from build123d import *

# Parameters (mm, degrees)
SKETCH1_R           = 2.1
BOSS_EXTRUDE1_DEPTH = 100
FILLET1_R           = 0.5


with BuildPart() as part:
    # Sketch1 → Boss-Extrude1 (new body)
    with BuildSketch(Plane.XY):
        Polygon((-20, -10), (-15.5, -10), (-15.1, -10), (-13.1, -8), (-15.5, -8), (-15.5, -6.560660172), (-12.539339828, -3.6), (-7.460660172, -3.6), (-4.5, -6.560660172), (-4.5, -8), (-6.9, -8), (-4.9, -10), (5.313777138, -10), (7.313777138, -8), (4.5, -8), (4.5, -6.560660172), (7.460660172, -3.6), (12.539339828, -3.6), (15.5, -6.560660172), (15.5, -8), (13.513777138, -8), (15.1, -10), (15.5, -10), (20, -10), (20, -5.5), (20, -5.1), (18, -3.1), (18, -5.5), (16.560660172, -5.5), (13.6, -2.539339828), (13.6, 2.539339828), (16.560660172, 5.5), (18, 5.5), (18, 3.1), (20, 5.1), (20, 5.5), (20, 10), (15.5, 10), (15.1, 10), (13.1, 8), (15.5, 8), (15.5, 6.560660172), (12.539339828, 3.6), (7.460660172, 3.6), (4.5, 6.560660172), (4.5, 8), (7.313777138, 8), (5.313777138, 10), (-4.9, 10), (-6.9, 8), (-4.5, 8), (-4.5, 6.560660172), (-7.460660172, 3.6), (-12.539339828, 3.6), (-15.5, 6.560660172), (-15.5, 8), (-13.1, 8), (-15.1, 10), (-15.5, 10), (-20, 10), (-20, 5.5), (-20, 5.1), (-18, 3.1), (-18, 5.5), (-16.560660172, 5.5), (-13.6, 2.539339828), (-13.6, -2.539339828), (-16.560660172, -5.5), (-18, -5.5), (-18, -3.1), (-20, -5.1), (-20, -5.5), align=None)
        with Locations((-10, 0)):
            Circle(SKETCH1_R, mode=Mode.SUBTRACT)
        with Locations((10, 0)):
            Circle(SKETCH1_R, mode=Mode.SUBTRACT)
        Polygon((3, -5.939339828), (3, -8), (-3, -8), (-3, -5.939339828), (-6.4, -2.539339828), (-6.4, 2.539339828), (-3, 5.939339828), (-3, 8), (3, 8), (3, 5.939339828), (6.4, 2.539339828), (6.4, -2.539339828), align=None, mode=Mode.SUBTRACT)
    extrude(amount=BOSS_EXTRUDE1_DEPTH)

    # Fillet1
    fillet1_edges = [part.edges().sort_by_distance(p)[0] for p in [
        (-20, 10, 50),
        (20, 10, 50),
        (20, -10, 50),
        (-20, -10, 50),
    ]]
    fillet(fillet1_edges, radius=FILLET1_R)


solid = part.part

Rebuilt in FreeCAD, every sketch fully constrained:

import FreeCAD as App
import Part
import Sketcher
from FreeCAD import Vector
Q = App.Units.Quantity


def edges_at(feature, points):
    """Names of the edges that pass closest to the given points."""
    edges = feature.Shape.Edges
    near = lambda p: min(range(len(edges)), key=lambda i: edges[i].distToShape(Part.Vertex(*p))[0])
    return sorted({f"Edge{near(p) + 1}" for p in points})


def add_polygon(sketch, points):
    """Adds a closed chain of lines whose ends are joined by coincident constraints."""
    first, n = sketch.GeometryCount, len(points)
    for a, b in zip(points, points[1:] + points[:1]):
        sketch.addGeometry(Part.LineSegment(App.Vector(*a, 0), App.Vector(*b, 0)), False)
    for i in range(n):
        sketch.addConstraint(Sketcher.Constraint("Coincident", first + i, 2, first + (i + 1) % n, 1))

doc = App.newDocument("Part")
params = doc.addObject("Spreadsheet::Sheet", "Params")
for row, (alias, value) in enumerate([
    ("sketch1_diameter", "4.2 mm"),
    ("sketch1_width", "6 mm"),
    ("sketch1_width2", "4.9 mm"),
    ("sketch1_width3", "2.4 mm"),
    ("pad1_length", "100 mm"),
    ("fillet_radius", "0.5 mm"),
], start=1):
    params.set(f"A{row}", alias)
    params.set(f"B{row}", "=" + value)
    params.setAlias(f"B{row}", alias)

body = doc.addObject("PartDesign::Body", "Body")

# Sketch on XY plane
sketch1 = body.newObject("Sketcher::SketchObject", "Sketch")
sketch1.AttachmentSupport = (doc.getObject("XY_Plane"), [""])
sketch1.MapMode = "FlatFace"
add_polygon(sketch1, [(-20, -10), (-15.1, -10), (-13.1, -8), (-15.5, -8), (-15.5, -6.6), (-12.5, -3.6), (-7.5, -3.6), (-4.5, -6.6), (-4.5, -8), (-6.9, -8), (-4.9, -10), (5.3, -10), (7.3, -8), (4.5, -8), (4.5, -6.6), (7.5, -3.6), (12.5, -3.6), (15.5, -6.6), (15.5, -8), (13.5, -8), (15.1, -10), (20, -10), (20, -5.1), (18, -3.1), (18, -5.5), (16.6, -5.5), (13.6, -2.5), (13.6, 2.5), (16.6, 5.5), (18, 5.5), (18, 3.1), (20, 5.1), (20, 10), (15.1, 10), (13.1, 8), (15.5, 8), (15.5, 6.6), (12.5, 3.6), (7.5, 3.6), (4.5, 6.6), (4.5, 8), (7.3, 8), (5.3, 10), (-4.9, 10), (-6.9, 8), (-4.5, 8), (-4.5, 6.6), (-7.5, 3.6), (-12.5, 3.6), (-15.5, 6.6), (-15.5, 8), (-13.1, 8), (-15.1, 10), (-20, 10), (-20, 5.1), (-18, 3.1), (-18, 5.5), (-16.6, 5.5), (-13.6, 2.5), (-13.6, -2.5), (-16.6, -5.5), (-18, -5.5), (-18, -3.1), (-20, -5.1)])  # lines 0-63
sketch1.addGeometry(Part.Circle(Vector(-10, 0, 0), Vector(0, 0, 1), 2.1), False)  # 64
add_polygon(sketch1, [(6.4, -2.5), (3, -5.9), (3, -8), (-3, -8), (-3, -5.9), (-6.4, -2.5), (-6.4, 2.5), (-3, 5.9), (-3, 8), (3, 8), (3, 5.9), (6.4, 2.5)])  # lines 65-76
sketch1.addGeometry(Part.Circle(Vector(10, 0, 0), Vector(0, 0, 1), 2.1), False)  # 77
sketch1.addConstraint([
    Sketcher.Constraint("Horizontal", 0),
    Sketcher.Constraint("Horizontal", 2),
    Sketcher.Constraint("Vertical", 3),
    Sketcher.Constraint("Horizontal", 5),
    Sketcher.Constraint("Vertical", 7),
    Sketcher.Constraint("Horizontal", 8),
    Sketcher.Constraint("Horizontal", 10),
    Sketcher.Constraint("Horizontal", 12),
    Sketcher.Constraint("Vertical", 13),
    Sketcher.Constraint("Horizontal", 15),
    Sketcher.Constraint("Vertical", 17),
    Sketcher.Constraint("Horizontal", 18),
    Sketcher.Constraint("Horizontal", 20),
    Sketcher.Constraint("Vertical", 21),
    Sketcher.Constraint("Vertical", 23),
    Sketcher.Constraint("Horizontal", 24),
    Sketcher.Constraint("Vertical", 26),
    Sketcher.Constraint("Horizontal", 28),
    Sketcher.Constraint("Vertical", 29),
    Sketcher.Constraint("Vertical", 31),
    Sketcher.Constraint("Horizontal", 32),
    Sketcher.Constraint("Horizontal", 34),
    Sketcher.Constraint("Vertical", 35),
    Sketcher.Constraint("Horizontal", 37),
    Sketcher.Constraint("Vertical", 39),
    Sketcher.Constraint("Horizontal", 40),
    Sketcher.Constraint("Horizontal", 42),
    Sketcher.Constraint("Horizontal", 44),
    Sketcher.Constraint("Vertical", 45),
    Sketcher.Constraint("Horizontal", 47),
    Sketcher.Constraint("Vertical", 49),
    Sketcher.Constraint("Horizontal", 50),
    Sketcher.Constraint("Horizontal", 52),
    Sketcher.Constraint("Vertical", 53),
    Sketcher.Constraint("Vertical", 55),
    Sketcher.Constraint("Horizontal", 56),
    Sketcher.Constraint("Vertical", 58),
    Sketcher.Constraint("Horizontal", 60),
    Sketcher.Constraint("Vertical", 61),
    Sketcher.Constraint("Vertical", 63),
    Sketcher.Constraint("Vertical", 66),
    Sketcher.Constraint("Horizontal", 67),
    Sketcher.Constraint("Vertical", 68),
    Sketcher.Constraint("Vertical", 70),
    Sketcher.Constraint("Vertical", 72),
    Sketcher.Constraint("Horizontal", 73),
    Sketcher.Constraint("Vertical", 74),
    Sketcher.Constraint("Vertical", 76),
    Sketcher.Constraint("Equal", 64, 77),
    Sketcher.Constraint("Symmetric", 64, 3, 77, 3, -1, 1),
    Sketcher.Constraint("Symmetric", 0, 2, 32, 2, -1, 1),
    Sketcher.Constraint("Symmetric", 1, 2, 33, 2, -1, 1),
    Sketcher.Constraint("Symmetric", 3, 2, 35, 2, -1, 1),
    Sketcher.Constraint("Symmetric", 4, 2, 36, 2, -1, 1),
    Sketcher.Constraint("Symmetric", 6, 2, 38, 2, -1, 1),
    Sketcher.Constraint("Symmetric", 12, 2, 44, 2, -1, 1),
    Sketcher.Constraint("Symmetric", 14, 2, 46, 2, -1, 1),
    Sketcher.Constraint("Symmetric", 16, 2, 48, 2, -1, 1),
    Sketcher.Constraint("Symmetric", 19, 2, 51, 2, -1, 1),
    Sketcher.Constraint("Symmetric", 21, 2, 53, 2, -1, 1),
    Sketcher.Constraint("Symmetric", 22, 2, 54, 2, -1, 1),
    Sketcher.Constraint("Symmetric", 24, 2, 56, 2, -1, 1),
    Sketcher.Constraint("Symmetric", 25, 2, 57, 2, -1, 1),
    Sketcher.Constraint("Symmetric", 27, 2, 59, 2, -1, 1),
    Sketcher.Constraint("Symmetric", 29, 2, 61, 2, -1, 1),
    Sketcher.Constraint("Symmetric", 30, 2, 62, 2, -1, 1),
    Sketcher.Constraint("Symmetric", 65, 2, 71, 2, -1, 1),
    Sketcher.Constraint("Symmetric", 67, 2, 73, 2, -1, 1),
    Sketcher.Constraint("Symmetric", 69, 2, 75, 2, -1, 1),
    Sketcher.Constraint("Symmetric", 7, 2, 12, 2, -2),
    Sketcher.Constraint("Symmetric", 5, 2, 14, 2, -2),
    Sketcher.Constraint("Symmetric", 3, 2, 16, 2, -2),
    Sketcher.Constraint("Symmetric", 0, 2, 19, 2, -2),
    Sketcher.Constraint("Symmetric", 33, 2, 50, 2, -2),
    Sketcher.Constraint("Symmetric", 30, 2, 53, 2, -2),
    Sketcher.Constraint("Symmetric", 29, 2, 54, 2, -2),
    Sketcher.Constraint("Symmetric", 27, 2, 56, 2, -2),
    Sketcher.Constraint("Symmetric", 65, 2, 68, 2, -2),
    Sketcher.Constraint("Symmetric", 11, 2, 40, 2, -1),
    Sketcher.Constraint("Symmetric", 10, 2, 41, 2, -1),
    Sketcher.Constraint("PointOnObject", 64, 3, -1),
    Sketcher.Constraint("Parallel", 1, 4),
    Sketcher.Constraint("Perpendicular", 4, 6),
    Sketcher.Constraint("Parallel", 6, 9),
    Sketcher.Constraint("Perpendicular", 9, 11),
    Sketcher.Constraint("Parallel", 11, 14),
    Sketcher.Constraint("Perpendicular", 14, 16),
    Sketcher.Constraint("Parallel", 16, 22),
    Sketcher.Constraint("Parallel", 22, 25),
    Sketcher.Constraint("Perpendicular", 25, 27),
    Sketcher.Constraint("Parallel", 27, 30),
    Sketcher.Constraint("Perpendicular", 36, 38),
    Sketcher.Constraint("Perpendicular", 41, 43),
    Sketcher.Constraint("Parallel", 43, 46),
    Sketcher.Constraint("Perpendicular", 46, 48),
    Sketcher.Constraint("Perpendicular", 57, 59),
    Sketcher.Constraint("Parallel", 62, 65),
    Sketcher.Constraint("Perpendicular", 65, 69),
    Sketcher.Constraint("Perpendicular", 69, 71),
    Sketcher.Constraint("Perpendicular", 71, 75),
    Sketcher.Constraint("Horizontal", 3, 2, 6, 2),
    Sketcher.Constraint("Horizontal", 2, 2, 7, 2),
    Sketcher.Constraint("Horizontal", 0, 2, 9, 2),
    Sketcher.Constraint("Horizontal", 12, 2, 17, 2),
    Sketcher.Constraint("Horizontal", 18, 2, 66, 2),
    Sketcher.Constraint("Horizontal", 58, 2, 69, 2),
    Sketcher.Constraint("Vertical", 9, 2, 42, 2),
    Sketcher.Constraint("Equal", 2, 8),
    Sketcher.Constraint("Equal", 60, 3),
    Sketcher.Constraint("Equal", 52, 21),
    Sketcher.Constraint("Equal", 50, 23),
    Sketcher.Constraint("Equal", 47, 26),
    Sketcher.Constraint("Equal", 11, 22),
    Sketcher.Constraint("Equal", 16, 25),
    Sketcher.Constraint("Diameter", 64, Q("4.2 mm")),
    Sketcher.Constraint("DistanceX", 67, 2, 67, 1, Q("6 mm")),
    Sketcher.Constraint("DistanceX", 0, 1, 0, 2, Q("4.9 mm")),
    Sketcher.Constraint("DistanceX", 2, 2, 2, 1, Q("2.4 mm")),
    Sketcher.Constraint("DistanceX", 64, 3, -1, 1, Q("10 mm")),
    Sketcher.Constraint("DistanceY", 0, 2, -1, 1, Q("10 mm")),
    Sketcher.Constraint("DistanceY", 1, 2, -1, 1, Q("8 mm")),
    Sketcher.Constraint("DistanceX", -1, 1, 20, 2, Q("20 mm")),
    Sketcher.Constraint("DistanceY", 4, 2, -1, 1, Q("3.6 mm")),
    Sketcher.Constraint("DistanceX", 69, 2, -1, 1, Q("6.4 mm")),
    Sketcher.Constraint("DistanceX", 5, 1, 5, 2, Q("5.07868 mm")),
    Sketcher.Constraint("DistanceX", 10, 1, 10, 2, Q("10.213777 mm")),
    Sketcher.Constraint("DistanceX", 18, 2, 18, 1, Q("1.986223 mm")),
])
sketch1.setExpression("Constraints[190]", "Params.sketch1_diameter")
sketch1.setExpression("Constraints[191]", "Params.sketch1_width")
sketch1.setExpression("Constraints[192]", "Params.sketch1_width2")
sketch1.setExpression("Constraints[193]", "Params.sketch1_width3")
pad1 = body.newObject("PartDesign::Pad", "Pad")
pad1.Profile = sketch1
pad1.setExpression("Length", "Params.pad1_length")
doc.recompute()

fillet = body.newObject("PartDesign::Fillet", "Fillet")
fillet.Base = (pad1, edges_at(pad1, [
    (-20, 10, 50),
    (20, 10, 50),
    (20, -10, 50),
    (-20, -10, 50),
]))
fillet.setExpression("Radius", "Params.fillet_radius")

doc.recompute()
